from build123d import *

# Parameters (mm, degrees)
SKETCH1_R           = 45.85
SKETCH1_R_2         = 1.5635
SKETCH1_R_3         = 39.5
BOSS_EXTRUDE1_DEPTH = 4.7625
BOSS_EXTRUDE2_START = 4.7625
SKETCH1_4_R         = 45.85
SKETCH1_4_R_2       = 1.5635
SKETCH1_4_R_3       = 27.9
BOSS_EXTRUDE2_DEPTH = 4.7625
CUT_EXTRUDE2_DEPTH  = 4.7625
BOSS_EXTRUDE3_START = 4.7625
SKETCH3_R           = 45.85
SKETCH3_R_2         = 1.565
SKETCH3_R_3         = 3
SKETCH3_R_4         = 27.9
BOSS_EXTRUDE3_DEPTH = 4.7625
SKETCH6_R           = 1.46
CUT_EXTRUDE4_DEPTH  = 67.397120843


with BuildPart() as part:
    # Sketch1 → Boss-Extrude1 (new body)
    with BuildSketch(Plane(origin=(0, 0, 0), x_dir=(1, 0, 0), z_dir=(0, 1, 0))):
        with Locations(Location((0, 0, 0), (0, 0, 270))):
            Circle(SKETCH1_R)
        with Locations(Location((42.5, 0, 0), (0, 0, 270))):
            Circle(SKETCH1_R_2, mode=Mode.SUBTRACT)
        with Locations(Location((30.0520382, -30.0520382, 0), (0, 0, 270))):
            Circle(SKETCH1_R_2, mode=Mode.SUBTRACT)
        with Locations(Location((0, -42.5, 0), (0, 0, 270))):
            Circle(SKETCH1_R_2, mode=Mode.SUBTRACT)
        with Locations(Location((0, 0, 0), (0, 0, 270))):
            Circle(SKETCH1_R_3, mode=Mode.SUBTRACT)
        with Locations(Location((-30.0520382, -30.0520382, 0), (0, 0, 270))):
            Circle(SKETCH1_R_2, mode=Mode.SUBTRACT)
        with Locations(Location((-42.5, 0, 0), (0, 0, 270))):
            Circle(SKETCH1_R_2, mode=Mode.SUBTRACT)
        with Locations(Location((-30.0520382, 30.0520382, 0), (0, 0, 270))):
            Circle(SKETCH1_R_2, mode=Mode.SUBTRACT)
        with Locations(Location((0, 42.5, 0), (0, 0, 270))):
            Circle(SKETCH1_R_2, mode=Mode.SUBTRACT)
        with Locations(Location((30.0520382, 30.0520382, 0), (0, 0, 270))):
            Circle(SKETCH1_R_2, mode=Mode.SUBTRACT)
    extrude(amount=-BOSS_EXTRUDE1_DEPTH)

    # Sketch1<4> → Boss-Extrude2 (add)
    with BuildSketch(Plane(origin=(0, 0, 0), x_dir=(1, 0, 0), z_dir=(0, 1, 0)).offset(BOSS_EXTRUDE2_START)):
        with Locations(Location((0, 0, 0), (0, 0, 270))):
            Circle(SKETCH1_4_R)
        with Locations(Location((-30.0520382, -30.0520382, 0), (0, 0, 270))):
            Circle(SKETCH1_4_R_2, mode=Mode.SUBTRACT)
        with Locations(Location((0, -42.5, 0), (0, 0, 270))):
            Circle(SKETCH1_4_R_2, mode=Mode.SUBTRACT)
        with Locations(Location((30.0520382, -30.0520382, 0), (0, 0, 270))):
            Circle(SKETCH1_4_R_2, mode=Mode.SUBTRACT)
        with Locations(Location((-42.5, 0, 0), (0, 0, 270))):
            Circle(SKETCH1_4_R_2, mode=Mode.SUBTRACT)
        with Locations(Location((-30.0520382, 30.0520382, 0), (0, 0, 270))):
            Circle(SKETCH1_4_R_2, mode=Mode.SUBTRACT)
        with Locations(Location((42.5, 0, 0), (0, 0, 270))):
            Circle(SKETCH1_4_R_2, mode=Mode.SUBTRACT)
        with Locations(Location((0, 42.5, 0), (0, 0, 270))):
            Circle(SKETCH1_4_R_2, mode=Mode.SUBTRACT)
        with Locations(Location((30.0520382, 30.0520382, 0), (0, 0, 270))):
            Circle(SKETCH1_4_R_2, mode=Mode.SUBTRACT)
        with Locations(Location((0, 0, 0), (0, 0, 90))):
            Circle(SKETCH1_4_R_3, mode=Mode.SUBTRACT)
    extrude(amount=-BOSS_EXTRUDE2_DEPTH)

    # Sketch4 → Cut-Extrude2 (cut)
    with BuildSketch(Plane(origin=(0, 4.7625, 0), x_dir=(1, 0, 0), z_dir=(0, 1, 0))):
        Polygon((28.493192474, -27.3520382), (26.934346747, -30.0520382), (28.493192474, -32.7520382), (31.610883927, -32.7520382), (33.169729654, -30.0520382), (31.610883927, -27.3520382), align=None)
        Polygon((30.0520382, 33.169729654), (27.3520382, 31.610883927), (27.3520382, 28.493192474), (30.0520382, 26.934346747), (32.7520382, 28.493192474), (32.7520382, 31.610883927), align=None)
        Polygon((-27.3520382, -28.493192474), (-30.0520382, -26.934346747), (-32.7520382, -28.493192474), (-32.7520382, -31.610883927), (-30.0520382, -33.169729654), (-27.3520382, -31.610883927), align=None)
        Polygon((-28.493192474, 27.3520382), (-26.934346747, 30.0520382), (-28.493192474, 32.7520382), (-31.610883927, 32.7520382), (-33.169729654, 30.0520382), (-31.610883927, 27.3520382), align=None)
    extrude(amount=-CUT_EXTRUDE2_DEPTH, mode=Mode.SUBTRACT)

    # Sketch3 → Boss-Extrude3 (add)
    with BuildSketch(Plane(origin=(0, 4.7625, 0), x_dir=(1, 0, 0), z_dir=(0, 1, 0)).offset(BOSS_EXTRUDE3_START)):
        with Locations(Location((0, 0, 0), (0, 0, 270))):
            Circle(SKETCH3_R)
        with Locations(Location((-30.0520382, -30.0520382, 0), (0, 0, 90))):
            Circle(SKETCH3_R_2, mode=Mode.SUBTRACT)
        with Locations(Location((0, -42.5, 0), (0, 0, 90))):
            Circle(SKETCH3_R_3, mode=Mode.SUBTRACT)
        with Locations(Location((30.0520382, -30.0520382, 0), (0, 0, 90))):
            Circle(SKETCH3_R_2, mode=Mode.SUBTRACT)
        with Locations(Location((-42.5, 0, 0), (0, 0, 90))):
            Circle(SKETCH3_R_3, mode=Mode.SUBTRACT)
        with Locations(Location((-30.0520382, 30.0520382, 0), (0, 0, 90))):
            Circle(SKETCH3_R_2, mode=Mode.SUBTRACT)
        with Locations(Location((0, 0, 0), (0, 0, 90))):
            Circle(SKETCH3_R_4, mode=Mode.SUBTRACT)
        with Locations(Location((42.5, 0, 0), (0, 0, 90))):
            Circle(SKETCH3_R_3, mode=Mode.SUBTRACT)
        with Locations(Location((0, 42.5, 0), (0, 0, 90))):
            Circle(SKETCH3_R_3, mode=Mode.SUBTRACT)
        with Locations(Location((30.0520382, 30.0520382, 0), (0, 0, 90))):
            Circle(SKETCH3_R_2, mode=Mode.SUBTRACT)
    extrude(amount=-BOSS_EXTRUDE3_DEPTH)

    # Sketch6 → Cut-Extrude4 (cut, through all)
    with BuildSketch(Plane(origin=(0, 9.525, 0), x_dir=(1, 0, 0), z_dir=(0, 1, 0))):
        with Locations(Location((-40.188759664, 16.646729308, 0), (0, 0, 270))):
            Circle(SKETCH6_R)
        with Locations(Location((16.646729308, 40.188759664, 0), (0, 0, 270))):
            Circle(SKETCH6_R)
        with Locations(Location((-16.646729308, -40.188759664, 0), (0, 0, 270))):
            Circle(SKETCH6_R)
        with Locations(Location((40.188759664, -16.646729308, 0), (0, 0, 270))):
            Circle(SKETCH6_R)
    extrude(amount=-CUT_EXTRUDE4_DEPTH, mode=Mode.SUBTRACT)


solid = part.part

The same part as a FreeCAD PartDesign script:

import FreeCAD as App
import Part
import Sketcher

V = App.Vector
Q = App.Units.Quantity

doc = App.newDocument("Part")
body = doc.addObject("PartDesign::Body", "Body")

# Sketch on XZ plane
sketch1 = body.newObject("Sketcher::SketchObject", "Sketch")
sketch1.AttachmentSupport = (doc.getObject("XZ_Plane"), [""])
sketch1.MapMode = "FlatFace"
sketch1.addGeometry([
    Part.Circle(V(0, 0, 0), V(0, 0, 1), 45.9),  # 0
    Part.Circle(V(-30.1, -30.1, 0), V(0, 0, 1), 1.6),  # 1
    Part.Circle(V(0, -42.5, 0), V(0, 0, 1), 1.6),  # 2
    Part.Circle(V(-42.5, 0, 0), V(0, 0, 1), 1.6),  # 3
    Part.Circle(V(-30.1, 30.1, 0), V(0, 0, 1), 1.6),  # 4
    Part.Circle(V(30.1, -30.1, 0), V(0, 0, 1), 1.6),  # 5
    Part.Circle(V(42.5, 0, 0), V(0, 0, 1), 1.6),  # 6
    Part.Circle(V(0, 0, 0), V(0, 0, 1), 39.5),  # 7
    Part.Circle(V(0, 42.5, 0), V(0, 0, 1), 1.6),  # 8
    Part.Circle(V(30.1, 30.1, 0), V(0, 0, 1), 1.6),  # 9
], False)
sketch1.addConstraint([
    Sketcher.Constraint("Coincident", 0, 3, -1, 1),
    Sketcher.Constraint("Coincident", 7, 3, -1, 1),
    Sketcher.Constraint("Equal", 1, 2),
    Sketcher.Constraint("Equal", 2, 3),
    Sketcher.Constraint("Equal", 3, 4),
    Sketcher.Constraint("Equal", 4, 5),
    Sketcher.Constraint("Equal", 5, 6),
    Sketcher.Constraint("Equal", 6, 8),
    Sketcher.Constraint("Equal", 8, 9),
    Sketcher.Constraint("Symmetric", 4, 3, 5, 3, -1, 1),
    Sketcher.Constraint("Symmetric", 3, 3, 6, 3, -1, 1),
    Sketcher.Constraint("Symmetric", 2, 3, 8, 3, -1, 1),
    Sketcher.Constraint("Symmetric", 1, 3, 9, 3, -1, 1),
    Sketcher.Constraint("Symmetric", 1, 3, 5, 3, -2),
    Sketcher.Constraint("PointOnObject", 2, 3, -2),
    Sketcher.Constraint("PointOnObject", 3, 3, -1),
    Sketcher.Constraint("Diameter", 7, Q("79 mm")),
    Sketcher.Constraint("Diameter", 0, Q("91.7 mm")),
    Sketcher.Constraint("Diameter", 1, Q("3.127 mm")),
    Sketcher.Constraint("DistanceY", 2, 3, -1, 1, Q("42.5 mm")),
    Sketcher.Constraint("DistanceX", 3, 3, -1, 1, Q("42.5 mm")),
    Sketcher.Constraint("DistanceX", 1, 3, -1, 1, Q("30.052038 mm")),
    Sketcher.Constraint("DistanceY", 1, 3, -1, 1, Q("30.052038 mm")),
])
pad1 = body.newObject("PartDesign::Pad", "Pad")
pad1.Profile = sketch1
pad1.Length = 4.7625

# Sketch on XZ plane
sketch2 = body.newObject("Sketcher::SketchObject", "Sketch001")
sketch2.AttachmentSupport = (doc.getObject("XZ_Plane"), [""])
sketch2.MapMode = "FlatFace"
sketch2.AttachmentOffset = App.Placement(V(0, 0, -4.7625), App.Rotation())
sketch2.addGeometry([
    Part.Circle(V(0, 0, 0), V(0, 0, 1), 45.9),  # 0
    Part.Circle(V(-30.1, -30.1, 0), V(0, 0, 1), 1.6),  # 1
    Part.Circle(V(0, -42.5, 0), V(0, 0, 1), 1.6),  # 2
    Part.Circle(V(-42.5, 0, 0), V(0, 0, 1), 1.6),  # 3
    Part.Circle(V(-30.1, 30.1, 0), V(0, 0, 1), 1.6),  # 4
    Part.Circle(V(0, 0, 0), V(0, 0, 1), 27.9),  # 5
    Part.Circle(V(30.1, -30.1, 0), V(0, 0, 1), 1.6),  # 6
    Part.Circle(V(42.5, 0, 0), V(0, 0, 1), 1.6),  # 7
    Part.Circle(V(0, 42.5, 0), V(0, 0, 1), 1.6),  # 8
    Part.Circle(V(30.1, 30.1, 0), V(0, 0, 1), 1.6),  # 9
], False)
sketch2.addConstraint([
    Sketcher.Constraint("Coincident", 0, 3, -1, 1),
    Sketcher.Constraint("Coincident", 5, 3, -1, 1),
    Sketcher.Constraint("Equal", 1, 2),
    Sketcher.Constraint("Equal", 2, 3),
    Sketcher.Constraint("Equal", 3, 4),
    Sketcher.Constraint("Equal", 4, 6),
    Sketcher.Constraint("Equal", 6, 7),
    Sketcher.Constraint("Equal", 7, 8),
    Sketcher.Constraint("Equal", 8, 9),
    Sketcher.Constraint("Symmetric", 4, 3, 6, 3, -1, 1),
    Sketcher.Constraint("Symmetric", 3, 3, 7, 3, -1, 1),
    Sketcher.Constraint("Symmetric", 2, 3, 8, 3, -1, 1),
    Sketcher.Constraint("Symmetric", 1, 3, 9, 3, -1, 1),
    Sketcher.Constraint("Symmetric", 1, 3, 6, 3, -2),
    Sketcher.Constraint("PointOnObject", 2, 3, -2),
    Sketcher.Constraint("PointOnObject", 3, 3, -1),
    Sketcher.Constraint("Diameter", 0, Q("91.7 mm")),
    Sketcher.Constraint("Diameter", 5, Q("55.8 mm")),
    Sketcher.Constraint("Diameter", 1, Q("3.127 mm")),
    Sketcher.Constraint("DistanceY", 2, 3, -1, 1, Q("42.5 mm")),
    Sketcher.Constraint("DistanceX", 3, 3, -1, 1, Q("42.5 mm")),
    Sketcher.Constraint("DistanceX", 1, 3, -1, 1, Q("30.052038 mm")),
    Sketcher.Constraint("DistanceY", 1, 3, -1, 1, Q("30.052038 mm")),
])
pad2 = body.newObject("PartDesign::Pad", "Pad001")
pad2.Profile = sketch2
pad2.Length = 4.7625

# Sketch on XZ plane
sketch3 = body.newObject("Sketcher::SketchObject", "Sketch002")
sketch3.AttachmentSupport = (doc.getObject("XZ_Plane"), [""])
sketch3.MapMode = "FlatFace"
sketch3.AttachmentOffset = App.Placement(V(0, 0, -4.7625), App.Rotation())
sketch3.addGeometry([
    Part.LineSegment(V(28.5, 27.4, 0), V(26.9, 30.1, 0)),  # 0
    Part.LineSegment(V(26.9, 30.1, 0), V(28.5, 32.8, 0)),  # 1
    Part.LineSegment(V(28.5, 32.8, 0), V(31.6, 32.8, 0)),  # 2
    Part.LineSegment(V(31.6, 32.8, 0), V(33.2, 30.1, 0)),  # 3
    Part.LineSegment(V(33.2, 30.1, 0), V(31.6, 27.4, 0)),  # 4
    Part.LineSegment(V(31.6, 27.4, 0), V(28.5, 27.4, 0)),  # 5
    Part.LineSegment(V(30.1, -33.2, 0), V(27.4, -31.6, 0)),  # 6
    Part.LineSegment(V(27.4, -31.6, 0), V(27.4, -28.5, 0)),  # 7
    Part.LineSegment(V(27.4, -28.5, 0), V(30.1, -26.9, 0)),  # 8
    Part.LineSegment(V(30.1, -26.9, 0), V(32.8, -28.5, 0)),  # 9
    Part.LineSegment(V(32.8, -28.5, 0), V(32.8, -31.6, 0)),  # 10
    Part.LineSegment(V(32.8, -31.6, 0), V(30.1, -33.2, 0)),  # 11
    Part.LineSegment(V(-27.4, 28.5, 0), V(-30.1, 26.9, 0)),  # 12
    Part.LineSegment(V(-30.1, 26.9, 0), V(-32.8, 28.5, 0)),  # 13
    Part.LineSegment(V(-32.8, 28.5, 0), V(-32.8, 31.6, 0)),  # 14
    Part.LineSegment(V(-32.8, 31.6, 0), V(-30.1, 33.2, 0)),  # 15
    Part.LineSegment(V(-30.1, 33.2, 0), V(-27.4, 31.6, 0)),  # 16
    Part.LineSegment(V(-27.4, 31.6, 0), V(-27.4, 28.5, 0)),  # 17
    Part.LineSegment(V(-28.5, -27.4, 0), V(-26.9, -30.1, 0)),  # 18
    Part.LineSegment(V(-26.9, -30.1, 0), V(-28.5, -32.8, 0)),  # 19
    Part.LineSegment(V(-28.5, -32.8, 0), V(-31.6, -32.8, 0)),  # 20
    Part.LineSegment(V(-31.6, -32.8, 0), V(-33.2, -30.1, 0)),  # 21
    Part.LineSegment(V(-33.2, -30.1, 0), V(-31.6, -27.4, 0)),  # 22
    Part.LineSegment(V(-31.6, -27.4, 0), V(-28.5, -27.4, 0)),  # 23
], False)
sketch3.addConstraint([
    Sketcher.Constraint("Coincident", 0, 2, 1, 1),
    Sketcher.Constraint("Coincident", 1, 2, 2, 1),
    Sketcher.Constraint("Coincident", 2, 2, 3, 1),
    Sketcher.Constraint("Coincident", 3, 2, 4, 1),
    Sketcher.Constraint("Coincident", 4, 2, 5, 1),
    Sketcher.Constraint("Coincident", 5, 2, 0, 1),
    Sketcher.Constraint("Coincident", 6, 2, 7, 1),
    Sketcher.Constraint("Coincident", 7, 2, 8, 1),
    Sketcher.Constraint("Coincident", 8, 2, 9, 1),
    Sketcher.Constraint("Coincident", 9, 2, 10, 1),
    Sketcher.Constraint("Coincident", 10, 2, 11, 1),
    Sketcher.Constraint("Coincident", 11, 2, 6, 1),
    Sketcher.Constraint("Coincident", 12, 2, 13, 1),
    Sketcher.Constraint("Coincident", 13, 2, 14, 1),
    Sketcher.Constraint("Coincident", 14, 2, 15, 1),
    Sketcher.Constraint("Coincident", 15, 2, 16, 1),
    Sketcher.Constraint("Coincident", 16, 2, 17, 1),
    Sketcher.Constraint("Coincident", 17, 2, 12, 1),
    Sketcher.Constraint("Coincident", 18, 2, 19, 1),
    Sketcher.Constraint("Coincident", 19, 2, 20, 1),
    Sketcher.Constraint("Coincident", 20, 2, 21, 1),
    Sketcher.Constraint("Coincident", 21, 2, 22, 1),
    Sketcher.Constraint("Coincident", 22, 2, 23, 1),
    Sketcher.Constraint("Coincident", 23, 2, 18, 1),
    Sketcher.Constraint("Horizontal", 2),
    Sketcher.Constraint("Horizontal", 5),
    Sketcher.Constraint("Vertical", 7),
    Sketcher.Constraint("Vertical", 10),
    Sketcher.Constraint("Vertical", 14),
    Sketcher.Constraint("Vertical", 17),
    Sketcher.Constraint("Horizontal", 20),
    Sketcher.Constraint("Horizontal", 23),
    Sketcher.Constraint("Symmetric", 8, 2, 12, 2, -1, 1),
    Sketcher.Constraint("Symmetric", 9, 2, 13, 2, -1, 1),
    Sketcher.Constraint("Symmetric", 11, 2, 15, 2, -1, 1),
    Sketcher.Constraint("Symmetric", 6, 2, 16, 2, -1, 1),
    Sketcher.Constraint("Symmetric", 0, 2, 18, 2, -1, 1),
    Sketcher.Constraint("Symmetric", 1, 2, 19, 2, -1, 1),
    Sketcher.Constraint("Symmetric", 3, 2, 21, 2, -1, 1),
    Sketcher.Constraint("Symmetric", 4, 2, 22, 2, -1, 1),
    Sketcher.Constraint("Parallel", 0, 3),
    Sketcher.Constraint("Parallel", 1, 4),
    Sketcher.Constraint("Perpendicular", 4, 6),
    Sketcher.Constraint("Perpendicular", 3, 8),
    Sketcher.Constraint("Parallel", 6, 9),
    Sketcher.Constraint("Parallel", 8, 11),
    Sketcher.Constraint("Parallel", 11, 12),
    Sketcher.Constraint("Parallel", 12, 15),
    Sketcher.Constraint("Perpendicular", 15, 18),
    Sketcher.Constraint("Parallel", 18, 21),
    Sketcher.Constraint("Horizontal", 0, 2, 3, 2),
    Sketcher.Constraint("Horizontal", 7, 2, 9, 2),
    Sketcher.Constraint("Horizontal", 6, 2, 10, 2),
    Sketcher.Constraint("Vertical", 2, 2, 4, 2),
    Sketcher.Constraint("Vertical", 1, 2, 5, 2),
    Sketcher.Constraint("Equal", 23, 7),
    Sketcher.Constraint("Equal", 4, 6),
    Sketcher.Constraint("Angle", 0, Q("120 deg")),
    Sketcher.Constraint("DistanceY", 0, 2, 1, 2, Q("2.7 mm")),
    Sketcher.Constraint("DistanceX", 2, 1, 2, 2, Q("3.117691 mm")),
    Sketcher.Constraint("DistanceY", -1, 1, 0, 2, Q("30.052038 mm")),
    Sketcher.Constraint("DistanceX", -1, 1, 3, 2, Q("33.16973 mm")),
    Sketcher.Constraint("DistanceX", -1, 1, 6, 2, Q("27.352038 mm")),
    Sketcher.Constraint("DistanceY", 11, 2, -1, 1, Q("33.16973 mm")),
])
pocket1 = body.newObject("PartDesign::Pocket", "Pocket")
pocket1.Profile = sketch3
pocket1.Length = 4.7625
pocket1.Reversed = True

# Sketch on XZ plane
sketch4 = body.newObject("Sketcher::SketchObject", "Sketch003")
sketch4.AttachmentSupport = (doc.getObject("XZ_Plane"), [""])
sketch4.MapMode = "FlatFace"
sketch4.AttachmentOffset = App.Placement(V(0, 0, -9.525), App.Rotation())
sketch4.addGeometry([
    Part.Circle(V(0, 0, 0), V(0, 0, 1), 45.9),  # 0
    Part.Circle(V(-30.1, -30.1, 0), V(0, 0, 1), 1.6),  # 1
    Part.Circle(V(0, -42.5, 0), V(0, 0, 1), 3),  # 2
    Part.Circle(V(-42.5, 0, 0), V(0, 0, 1), 3),  # 3
    Part.Circle(V(-30.1, 30.1, 0), V(0, 0, 1), 1.6),  # 4
    Part.Circle(V(30.1, -30.1, 0), V(0, 0, 1), 1.6),  # 5
    Part.Circle(V(42.5, 0, 0), V(0, 0, 1), 3),  # 6
    Part.Circle(V(0, 0, 0), V(0, 0, 1), 27.9),  # 7
    Part.Circle(V(0, 42.5, 0), V(0, 0, 1), 3),  # 8
    Part.Circle(V(30.1, 30.1, 0), V(0, 0, 1), 1.6),  # 9
], False)
sketch4.addConstraint([
    Sketcher.Constraint("Coincident", 0, 3, -1, 1),
    Sketcher.Constraint("Coincident", 7, 3, -1, 1),
    Sketcher.Constraint("Equal", 2, 3),
    Sketcher.Constraint("Equal", 1, 4),
    Sketcher.Constraint("Equal", 4, 5),
    Sketcher.Constraint("Equal", 3, 6),
    Sketcher.Constraint("Equal", 6, 8),
    Sketcher.Constraint("Equal", 5, 9),
    Sketcher.Constraint("Symmetric", 4, 3, 5, 3, -1, 1),
    Sketcher.Constraint("Symmetric", 3, 3, 6, 3, -1, 1),
    Sketcher.Constraint("Symmetric", 2, 3, 8, 3, -1, 1),
    Sketcher.Constraint("Symmetric", 1, 3, 9, 3, -1, 1),
    Sketcher.Constraint("Symmetric", 1, 3, 5, 3, -2),
    Sketcher.Constraint("PointOnObject", 2, 3, -2),
    Sketcher.Constraint("PointOnObject", 3, 3, -1),
    Sketcher.Constraint("Diameter", 2, Q("6 mm")),
    Sketcher.Constraint("Diameter", 0, Q("91.7 mm")),
    Sketcher.Constraint("Diameter", 7, Q("55.8 mm")),
    Sketcher.Constraint("Diameter", 1, Q("3.13 mm")),
    Sketcher.Constraint("DistanceY", 2, 3, -1, 1, Q("42.5 mm")),
    Sketcher.Constraint("DistanceX", 3, 3, -1, 1, Q("42.5 mm")),
    Sketcher.Constraint("DistanceX", 1, 3, -1, 1, Q("30.052038 mm")),
    Sketcher.Constraint("DistanceY", 1, 3, -1, 1, Q("30.052038 mm")),
])
pad3 = body.newObject("PartDesign::Pad", "Pad002")
pad3.Profile = sketch4
pad3.Length = 4.7625

# Sketch on XZ plane
sketch5 = body.newObject("Sketcher::SketchObject", "Sketch004")
sketch5.AttachmentSupport = (doc.getObject("XZ_Plane"), [""])
sketch5.MapMode = "FlatFace"
sketch5.AttachmentOffset = App.Placement(V(0, 0, -9.525), App.Rotation())
sketch5.addGeometry([
    Part.Circle(V(-40.2, -16.6, 0), V(0, 0, 1), 1.5),
    Part.Circle(V(16.6, -40.2, 0), V(0, 0, 1), 1.5),
    Part.Circle(V(-16.6, 40.2, 0), V(0, 0, 1), 1.5),
    Part.Circle(V(40.2, 16.6, 0), V(0, 0, 1), 1.5),
], False)
sketch5.addConstraint([
    Sketcher.Constraint("Equal", 0, 1),
    Sketcher.Constraint("Equal", 1, 2),
    Sketcher.Constraint("Equal", 2, 3),
    Sketcher.Constraint("Symmetric", 1, 3, 2, 3, -1, 1),
    Sketcher.Constraint("Symmetric", 0, 3, 3, 3, -1, 1),
    Sketcher.Constraint("Diameter", 0, Q("2.92 mm")),
    Sketcher.Constraint("DistanceX", 0, 3, -1, 1, Q("40.18876 mm")),
    Sketcher.Constraint("DistanceY", 0, 3, -1, 1, Q("16.646729 mm")),
    Sketcher.Constraint("DistanceX", -1, 1, 1, 3, Q("16.646729 mm")),
    Sketcher.Constraint("DistanceY", 1, 3, -1, 1, Q("40.18876 mm")),
])
pocket2 = body.newObject("PartDesign::Pocket", "Pocket001")
pocket2.Profile = sketch5
pocket2.Type = "ThroughAll"
pocket2.Reversed = True

doc.recompute()
